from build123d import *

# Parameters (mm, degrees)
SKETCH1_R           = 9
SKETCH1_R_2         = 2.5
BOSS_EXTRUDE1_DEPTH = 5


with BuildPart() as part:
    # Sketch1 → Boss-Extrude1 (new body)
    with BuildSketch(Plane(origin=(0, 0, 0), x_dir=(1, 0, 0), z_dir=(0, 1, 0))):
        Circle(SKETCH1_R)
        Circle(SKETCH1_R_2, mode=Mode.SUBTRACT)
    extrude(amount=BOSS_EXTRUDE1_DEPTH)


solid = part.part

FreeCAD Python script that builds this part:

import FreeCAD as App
import Part
import Sketcher

V = App.Vector
Q = App.Units.Quantity

doc = App.newDocument("Part")
params = doc.addObject("Spreadsheet::Sheet", "Params")
for row, (alias, value) in enumerate([
    ("sketch1_diameter", "18 mm"),
    ("sketch1_diameter2", "5 mm"),
    ("pad1_length", "5 mm"),
], start=1):
    params.set(f"A{row}", alias)
    params.set(f"B{row}", "=" + value)
    params.setAlias(f"B{row}", alias)

body = doc.addObject("PartDesign::Body", "Body")

# Sketch on XZ plane
sketch1 = body.newObject("Sketcher::SketchObject", "Sketch")
sketch1.AttachmentSupport = (doc.getObject("XZ_Plane"), [""])
sketch1.MapMode = "FlatFace"
sketch1.addGeometry([
    Part.Circle(V(0, 0, 0), V(0, 0, 1), 9),
    Part.Circle(V(0, 0, 0), V(0, 0, 1), 2.5),
], False)
sketch1.addConstraint([
    Sketcher.Constraint("Coincident", 0, 3, -1, 1),
    Sketcher.Constraint("Coincident", 1, 3, -1, 1),
    Sketcher.Constraint("Diameter", 0, Q("18 mm")),
    Sketcher.Constraint("Diameter", 1, Q("5 mm")),
])
sketch1.setExpression("Constraints[2]", "Params.sketch1_diameter")
sketch1.setExpression("Constraints[3]", "Params.sketch1_diameter2")
pad1 = body.newObject("PartDesign::Pad", "Pad")
pad1.Profile = sketch1
pad1.setExpression("Length", "Params.pad1_length")
pad1.Reversed = True

doc.recompute()
